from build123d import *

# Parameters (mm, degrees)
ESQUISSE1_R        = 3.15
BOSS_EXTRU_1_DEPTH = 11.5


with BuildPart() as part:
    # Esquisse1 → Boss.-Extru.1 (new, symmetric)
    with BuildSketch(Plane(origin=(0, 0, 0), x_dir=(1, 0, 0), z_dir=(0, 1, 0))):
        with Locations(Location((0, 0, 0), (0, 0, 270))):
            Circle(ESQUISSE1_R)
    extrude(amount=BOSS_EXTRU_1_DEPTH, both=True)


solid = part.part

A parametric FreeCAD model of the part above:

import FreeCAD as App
import Part
import Sketcher
Q = App.Units.Quantity

doc = App.newDocument("Part")
body = doc.addObject("PartDesign::Body", "Body")

sketch1 = body.newObject("Sketcher::SketchObject", "Sketch")
sketch1.AttachmentSupport = (doc.getObject("XZ_Plane"), [""])
sketch1.MapMode = "FlatFace"
sketch1.addGeometry(Part.Circle(App.Vector(0, 0, 0), App.Vector(0, 0, 1), 3.1), False)
sketch1.addConstraint(Sketcher.Constraint("Coincident", 0, 3, -1, 1))
sketch1.addConstraint(Sketcher.Constraint("Diameter", 0, Q("6.3 mm")))
pad1 = body.newObject("PartDesign::Pad", "Pad")
pad1.Profile = sketch1
pad1.Length = 23
pad1.Midplane = True

doc.recompute()
